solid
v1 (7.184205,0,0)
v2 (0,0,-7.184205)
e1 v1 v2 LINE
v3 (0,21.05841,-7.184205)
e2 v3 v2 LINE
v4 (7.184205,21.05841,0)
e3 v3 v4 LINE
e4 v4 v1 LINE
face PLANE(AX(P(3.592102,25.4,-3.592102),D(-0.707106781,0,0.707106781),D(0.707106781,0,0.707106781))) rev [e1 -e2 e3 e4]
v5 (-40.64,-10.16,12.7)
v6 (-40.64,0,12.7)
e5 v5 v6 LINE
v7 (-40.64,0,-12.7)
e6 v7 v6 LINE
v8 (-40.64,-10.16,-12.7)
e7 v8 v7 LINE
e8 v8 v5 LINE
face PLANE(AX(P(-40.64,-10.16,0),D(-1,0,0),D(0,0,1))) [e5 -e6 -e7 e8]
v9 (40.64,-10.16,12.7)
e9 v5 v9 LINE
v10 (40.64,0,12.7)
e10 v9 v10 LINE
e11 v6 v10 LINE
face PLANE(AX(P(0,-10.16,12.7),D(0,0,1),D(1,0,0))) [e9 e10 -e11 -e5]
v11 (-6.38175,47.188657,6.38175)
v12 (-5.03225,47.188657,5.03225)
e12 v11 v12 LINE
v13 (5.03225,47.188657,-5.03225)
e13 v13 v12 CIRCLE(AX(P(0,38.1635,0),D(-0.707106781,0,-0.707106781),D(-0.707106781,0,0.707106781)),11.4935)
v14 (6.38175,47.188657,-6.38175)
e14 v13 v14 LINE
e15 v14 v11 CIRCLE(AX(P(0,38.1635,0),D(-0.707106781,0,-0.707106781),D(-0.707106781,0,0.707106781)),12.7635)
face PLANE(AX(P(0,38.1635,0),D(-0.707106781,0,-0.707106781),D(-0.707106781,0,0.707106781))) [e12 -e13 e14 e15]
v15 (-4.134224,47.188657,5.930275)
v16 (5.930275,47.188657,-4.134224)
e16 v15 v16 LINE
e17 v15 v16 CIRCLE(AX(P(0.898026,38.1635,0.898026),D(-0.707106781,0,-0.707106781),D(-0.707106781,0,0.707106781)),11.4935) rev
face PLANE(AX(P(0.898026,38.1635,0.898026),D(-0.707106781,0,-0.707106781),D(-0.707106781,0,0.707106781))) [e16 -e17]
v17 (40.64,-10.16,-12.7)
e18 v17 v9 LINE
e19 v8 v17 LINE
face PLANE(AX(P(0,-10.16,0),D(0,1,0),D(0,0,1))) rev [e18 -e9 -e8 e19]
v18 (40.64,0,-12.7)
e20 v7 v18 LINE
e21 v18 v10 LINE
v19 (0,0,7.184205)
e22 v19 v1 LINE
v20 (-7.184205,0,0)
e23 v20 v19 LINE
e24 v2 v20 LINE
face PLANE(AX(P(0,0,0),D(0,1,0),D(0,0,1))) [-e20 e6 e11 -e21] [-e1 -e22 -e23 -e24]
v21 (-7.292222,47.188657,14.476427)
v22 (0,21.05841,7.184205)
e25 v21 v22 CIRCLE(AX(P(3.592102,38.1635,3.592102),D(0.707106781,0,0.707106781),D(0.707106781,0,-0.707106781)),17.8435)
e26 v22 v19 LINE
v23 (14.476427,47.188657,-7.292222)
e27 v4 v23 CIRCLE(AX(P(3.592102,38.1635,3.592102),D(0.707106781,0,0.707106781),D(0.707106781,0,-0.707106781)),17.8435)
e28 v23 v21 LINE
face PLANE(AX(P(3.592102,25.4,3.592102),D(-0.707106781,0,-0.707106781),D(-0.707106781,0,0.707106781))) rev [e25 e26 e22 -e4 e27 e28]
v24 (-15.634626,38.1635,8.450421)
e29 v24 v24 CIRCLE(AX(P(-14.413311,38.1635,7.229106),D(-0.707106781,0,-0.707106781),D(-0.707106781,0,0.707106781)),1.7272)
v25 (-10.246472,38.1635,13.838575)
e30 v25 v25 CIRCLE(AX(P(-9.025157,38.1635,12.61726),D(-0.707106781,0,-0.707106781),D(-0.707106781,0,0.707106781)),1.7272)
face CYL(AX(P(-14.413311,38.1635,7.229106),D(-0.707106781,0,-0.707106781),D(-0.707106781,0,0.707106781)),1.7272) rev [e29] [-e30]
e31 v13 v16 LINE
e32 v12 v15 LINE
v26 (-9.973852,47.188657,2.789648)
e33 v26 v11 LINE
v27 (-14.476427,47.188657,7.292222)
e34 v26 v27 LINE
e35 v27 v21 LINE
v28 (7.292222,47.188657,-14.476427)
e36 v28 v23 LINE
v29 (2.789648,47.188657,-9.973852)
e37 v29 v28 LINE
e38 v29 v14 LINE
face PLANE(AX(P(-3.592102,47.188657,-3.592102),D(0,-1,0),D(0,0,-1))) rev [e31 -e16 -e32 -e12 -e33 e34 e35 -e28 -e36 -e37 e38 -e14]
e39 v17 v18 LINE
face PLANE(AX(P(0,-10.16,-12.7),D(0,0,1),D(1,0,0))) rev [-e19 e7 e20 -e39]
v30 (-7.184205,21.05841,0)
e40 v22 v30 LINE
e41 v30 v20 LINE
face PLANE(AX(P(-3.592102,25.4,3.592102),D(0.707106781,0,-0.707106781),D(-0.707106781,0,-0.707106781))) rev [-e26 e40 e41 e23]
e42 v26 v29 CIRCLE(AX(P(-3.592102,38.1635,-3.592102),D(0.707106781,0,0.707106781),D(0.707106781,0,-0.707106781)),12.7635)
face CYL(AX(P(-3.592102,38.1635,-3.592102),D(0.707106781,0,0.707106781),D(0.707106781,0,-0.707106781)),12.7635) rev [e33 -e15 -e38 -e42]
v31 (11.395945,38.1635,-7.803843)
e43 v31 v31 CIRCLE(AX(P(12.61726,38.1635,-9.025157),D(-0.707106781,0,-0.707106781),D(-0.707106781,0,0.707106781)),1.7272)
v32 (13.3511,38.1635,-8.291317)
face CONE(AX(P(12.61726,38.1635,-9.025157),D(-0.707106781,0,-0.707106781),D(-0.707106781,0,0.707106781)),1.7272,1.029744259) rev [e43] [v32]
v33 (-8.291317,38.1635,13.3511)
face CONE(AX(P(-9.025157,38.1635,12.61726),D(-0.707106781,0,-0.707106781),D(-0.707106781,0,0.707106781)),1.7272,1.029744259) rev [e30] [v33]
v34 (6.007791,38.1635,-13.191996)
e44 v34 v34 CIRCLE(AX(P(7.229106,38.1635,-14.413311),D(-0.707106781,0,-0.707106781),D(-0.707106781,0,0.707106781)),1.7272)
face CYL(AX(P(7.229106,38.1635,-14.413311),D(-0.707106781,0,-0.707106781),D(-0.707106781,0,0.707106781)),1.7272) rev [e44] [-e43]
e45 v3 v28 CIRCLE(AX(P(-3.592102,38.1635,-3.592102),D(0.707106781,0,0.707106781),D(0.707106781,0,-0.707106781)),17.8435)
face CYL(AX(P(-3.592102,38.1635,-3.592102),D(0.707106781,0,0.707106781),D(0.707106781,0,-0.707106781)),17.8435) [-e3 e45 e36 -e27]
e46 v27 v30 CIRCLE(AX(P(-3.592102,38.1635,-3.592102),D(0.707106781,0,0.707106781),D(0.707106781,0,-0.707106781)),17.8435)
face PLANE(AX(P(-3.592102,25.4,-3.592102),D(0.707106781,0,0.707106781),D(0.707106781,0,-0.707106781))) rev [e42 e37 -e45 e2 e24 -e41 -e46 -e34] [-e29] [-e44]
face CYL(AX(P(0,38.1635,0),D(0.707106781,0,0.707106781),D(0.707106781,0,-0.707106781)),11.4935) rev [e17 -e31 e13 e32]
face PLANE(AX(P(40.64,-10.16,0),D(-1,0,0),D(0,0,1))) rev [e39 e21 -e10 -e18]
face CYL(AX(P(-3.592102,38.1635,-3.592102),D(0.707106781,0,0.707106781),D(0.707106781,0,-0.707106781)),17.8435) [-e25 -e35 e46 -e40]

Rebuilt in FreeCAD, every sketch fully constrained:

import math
import FreeCAD as App
import Part
import Sketcher
from FreeCAD import Vector
Q = App.Units.Quantity

doc = App.newDocument("Part")
body = doc.addObject("PartDesign::Body", "Body")

# Sketch on XZ plane
sketch1 = body.newObject("Sketcher::SketchObject", "Sketch")
sketch1.AttachmentSupport = (doc.getObject("XZ_Plane"), [""])
sketch1.MapMode = "FlatFace"
sketch1.addGeometry(Part.LineSegment(Vector(-41, -13, 0), Vector(-41, 13, 0)), False)
sketch1.addGeometry(Part.LineSegment(Vector(-41, 13, 0), Vector(41, 13, 0)), False)
sketch1.addGeometry(Part.LineSegment(Vector(41, 13, 0), Vector(41, -13, 0)), False)
sketch1.addGeometry(Part.LineSegment(Vector(41, -13, 0), Vector(-41, -13, 0)), False)
sketch1.addConstraint(Sketcher.Constraint("Coincident", 0, 2, 1, 1))
sketch1.addConstraint(Sketcher.Constraint("Coincident", 1, 2, 2, 1))
sketch1.addConstraint(Sketcher.Constraint("Coincident", 2, 2, 3, 1))
sketch1.addConstraint(Sketcher.Constraint("Coincident", 3, 2, 0, 1))
sketch1.addConstraint(Sketcher.Constraint("Vertical", 0))
sketch1.addConstraint(Sketcher.Constraint("Horizontal", 1))
sketch1.addConstraint(Sketcher.Constraint("Vertical", 2))
sketch1.addConstraint(Sketcher.Constraint("Horizontal", 3))
sketch1.addConstraint(Sketcher.Constraint("Symmetric", 0, 2, 2, 2, -1, 1))
sketch1.addConstraint(Sketcher.Constraint("DistanceY", 0, 1, 0, 2, Q("1 in")))
sketch1.addConstraint(Sketcher.Constraint("DistanceX", 1, 1, 1, 2, Q("3.2 in")))
pad1 = body.newObject("PartDesign::Pad", "Pad")
pad1.Profile = sketch1
pad1.Length = Q("0.4 in")

# Sketch on XZ plane
sketch2 = body.newObject("Sketcher::SketchObject", "Sketch001")
sketch2.AttachmentSupport = (doc.getObject("XZ_Plane"), [""])
sketch2.MapMode = "FlatFace"
sketch2.addGeometry(Part.LineSegment(Vector(0, 7, 0), Vector(7, 0, 0)), False)
sketch2.addGeometry(Part.LineSegment(Vector(7, 0, 0), Vector(0, -7, 0)), False)
sketch2.addGeometry(Part.LineSegment(Vector(0, -7, 0), Vector(-7, 0, 0)), False)
sketch2.addGeometry(Part.LineSegment(Vector(-7, 0, 0), Vector(0, 7, 0)), False)
sketch2.addConstraint(Sketcher.Constraint("Coincident", 0, 2, 1, 1))
sketch2.addConstraint(Sketcher.Constraint("Coincident", 1, 2, 2, 1))
sketch2.addConstraint(Sketcher.Constraint("Coincident", 2, 2, 3, 1))
sketch2.addConstraint(Sketcher.Constraint("Coincident", 3, 2, 0, 1))
sketch2.addConstraint(Sketcher.Constraint("Symmetric", 0, 2, 2, 2, -1, 1))
sketch2.addConstraint(Sketcher.Constraint("Symmetric", 1, 2, 3, 2, -1, 1))
sketch2.addConstraint(Sketcher.Constraint("PointOnObject", 0, 2, -1))
sketch2.addConstraint(Sketcher.Constraint("PointOnObject", 1, 2, -2))
sketch2.addConstraint(Sketcher.Constraint("Perpendicular", 0, 1))
sketch2.addConstraint(Sketcher.Constraint("Distance", 0, Q("0.4 in")))
pad2 = body.newObject("PartDesign::Pad", "Pad001")
pad2.Profile = sketch2
pad2.Length = Q("1 in")
pad2.Reversed = True

# Sketch on an angled plane
sketch3 = body.newObject("Sketcher::SketchObject", "Sketch002")
sketch3.Placement = App.Placement(Vector(3.592102, 0, 3.592102), App.Rotation(Vector(0.707106781, 0, -0.707106781), Vector(0, 0.999999999, 0), Vector(0.707106781, 0, 0.707106781), "ZXY"))
sketch3.addGeometry(Part.ArcOfCircle(Part.Circle(Vector(0, 38, 0), Vector(0, 0, 1), 13), math.radians(135), math.radians(270)), False)
sketch3.addGeometry(Part.LineSegment(Vector(-9, 47, 0), Vector(-15, 47, 0)), False)
sketch3.addGeometry(Part.ArcOfCircle(Part.Circle(Vector(0, 38, 0), Vector(0, 0, 1), 18), math.radians(150), math.radians(390)), False)
sketch3.addGeometry(Part.LineSegment(Vector(15, 47, 0), Vector(9, 47, 0)), False)
sketch3.addGeometry(Part.ArcOfCircle(Part.Circle(Vector(0, 38, 0), Vector(0, 0, 1), 13), math.radians(-90), math.radians(45)), False)
sketch3.addConstraint(Sketcher.Constraint("Coincident", 0, 1, 1, 1))
sketch3.addConstraint(Sketcher.Constraint("Coincident", 1, 2, 2, 1))
sketch3.addConstraint(Sketcher.Constraint("Coincident", 2, 2, 3, 1))
sketch3.addConstraint(Sketcher.Constraint("Coincident", 3, 2, 4, 2))
sketch3.addConstraint(Sketcher.Constraint("Tangent", 4, 1, 0, 2))
sketch3.addConstraint(Sketcher.Constraint("Horizontal", 1))
sketch3.addConstraint(Sketcher.Constraint("Horizontal", 3))
sketch3.addConstraint(Sketcher.Constraint("Coincident", 2, 3, 0, 3))
sketch3.addConstraint(Sketcher.Constraint("Equal", 0, 4))
sketch3.addConstraint(Sketcher.Constraint("Symmetric", 1, 2, 2, 2, -2))
sketch3.addConstraint(Sketcher.Constraint("PointOnObject", 4, 1, -2))
sketch3.addConstraint(Sketcher.Constraint("DistanceY", -1, 1, 4, 1, Q("1 in")))
sketch3.addConstraint(Sketcher.Constraint("Radius", 0, Q("0.5025 in")))
sketch3.addConstraint(Sketcher.Constraint("Radius", 2, Q("0.7025 in")))
sketch3.addConstraint(Sketcher.Constraint("DistanceX", 1, 2, 1, 1, Q("6.367601 mm")))
pad3 = body.newObject("PartDesign::Pad", "Pad002")
pad3.Profile = sketch3
pad3.Length = Q("0.4 in")
pad3.Reversed = True

# Sketch on an angled plane
sketch4 = body.newObject("Sketcher::SketchObject", "Sketch003")
sketch4.Placement = App.Placement(Vector(3.592102, 0, 3.592102), App.Rotation(Vector(0.707106781, 0, -0.707106781), Vector(0, 0.999999999, 0), Vector(0.707106781, 0, 0.707106781), "ZXY"))
sketch4.addGeometry(Part.LineSegment(Vector(15, 47, 0), Vector(-15, 47, 0)), False)
sketch4.addGeometry(Part.ArcOfCircle(Part.Circle(Vector(0, 38, 0), Vector(0, 0, 1), 18), math.radians(150), math.radians(390)), False)
sketch4.addConstraint(Sketcher.Constraint("Coincident", 0, 1, 1, 2))
sketch4.addConstraint(Sketcher.Constraint("Coincident", 1, 1, 0, 2))
sketch4.addConstraint(Sketcher.Constraint("Horizontal", 0))
sketch4.addConstraint(Sketcher.Constraint("PointOnObject", 1, 3, -2))
sketch4.addConstraint(Sketcher.Constraint("Radius", 1, Q("0.7025 in")))
sketch4.addConstraint(Sketcher.Constraint("DistanceY", -1, 1, 1, 3, Q("1.5025 in")))
sketch4.addConstraint(Sketcher.Constraint("DistanceX", 0, 2, 0, 1, Q("30.785518 mm")))
pad4 = body.newObject("PartDesign::Pad", "Pad003")
pad4.Profile = sketch4
pad4.Length = Q("0.15 in")
pad4.Reversed = True

# Sketch on an angled plane
sketch5 = body.newObject("Sketcher::SketchObject", "Sketch004")
sketch5.Placement = App.Placement(Vector(3.592102, 0, 3.592102), App.Rotation(Vector(0.707106781, 0, -0.707106781), Vector(0, 0.999999999, 0), Vector(0.707106781, 0, 0.707106781), "ZXY"))
sketch5.addGeometry(Part.LineSegment(Vector(-7.1, 47.2, 0), Vector(-9, 47.2, 0)), False)
sketch5.addGeometry(Part.ArcOfCircle(Part.Circle(Vector(0, 38.2, 0), Vector(0, 0, 1), 12.8), math.radians(135), math.radians(270)), False)
sketch5.addGeometry(Part.ArcOfCircle(Part.Circle(Vector(0, 38.2, 0), Vector(0, 0, 1), 12.8), math.radians(-90), math.radians(45)), False)
sketch5.addGeometry(Part.LineSegment(Vector(9, 47.2, 0), Vector(7.1, 47.2, 0)), False)
sketch5.addGeometry(Part.ArcOfCircle(Part.Circle(Vector(0, 38.2, 0), Vector(0, 0, 1), 11.5), math.radians(128), math.radians(412)), False)
sketch5.addConstraint(Sketcher.Constraint("Coincident", 0, 2, 1, 1))
sketch5.addConstraint(Sketcher.Constraint("Tangent", 1, 2, 2, 1))
sketch5.addConstraint(Sketcher.Constraint("Coincident", 2, 2, 3, 1))
sketch5.addConstraint(Sketcher.Constraint("Coincident", 3, 2, 4, 2))
sketch5.addConstraint(Sketcher.Constraint("Coincident", 4, 1, 0, 1))
sketch5.addConstraint(Sketcher.Constraint("Horizontal", 0))
sketch5.addConstraint(Sketcher.Constraint("Horizontal", 3))
sketch5.addConstraint(Sketcher.Constraint("Coincident", 4, 3, 1, 3))
sketch5.addConstraint(Sketcher.Constraint("Equal", 1, 2))
sketch5.addConstraint(Sketcher.Constraint("Symmetric", 0, 2, 2, 2, -2))
sketch5.addConstraint(Sketcher.Constraint("PointOnObject", 1, 2, -2))
sketch5.addConstraint(Sketcher.Constraint("DistanceY", -1, 1, 1, 2, Q("1 in")))
sketch5.addConstraint(Sketcher.Constraint("Radius", 1, Q("0.5025 in")))
sketch5.addConstraint(Sketcher.Constraint("Radius", 4, Q("0.4525 in")))
sketch5.addConstraint(Sketcher.Constraint("DistanceX", 0, 2, 0, 1, Q("1.908481 mm")))
pad5 = body.newObject("PartDesign::Pad", "Pad004")
pad5.Profile = sketch5
pad5.Length = Q("0.2 in")
pad5.Reversed = True

# Sketch on an angled plane
sketch6 = body.newObject("Sketcher::SketchObject", "Sketch005")
sketch6.Placement = App.Placement(Vector(-3.592102, 0, -3.592102), App.Rotation(Vector(-0.707106781, 0, 0.707106781), Vector(0, 0.999999999, 0), Vector(-0.707106781, 0, -0.707106781), "ZXY"))
sketch6.addGeometry(Part.Circle(Vector(15.3, 38.2, 0), Vector(0, 0, 1), 1.7), False)
sketch6.addGeometry(Part.Circle(Vector(-15.3, 38.2, 0), Vector(0, 0, 1), 1.7), False)
sketch6.addConstraint(Sketcher.Constraint("Equal", 0, 1))
sketch6.addConstraint(Sketcher.Constraint("Symmetric", 0, 3, 1, 3, -2))
sketch6.addConstraint(Sketcher.Constraint("Diameter", 0, Q("0.136 in")))
sketch6.addConstraint(Sketcher.Constraint("DistanceX", 1, 3, 0, 3, Q("1.205 in")))
sketch6.addConstraint(Sketcher.Constraint("DistanceY", -1, 1, 0, 3, Q("1.5025 in")))
doc.recompute()
hole = body.newObject("PartDesign::Hole", "Hole")
hole.Profile = sketch6
hole.ThreadType = "None"
hole.Diameter = Q("0.136 in")
hole.DepthType = "Dimension"
hole.Depth = Q("0.3 in")
hole.DrillPoint = "Angled"
hole.DrillPointAngle = 118

doc.recompute()
